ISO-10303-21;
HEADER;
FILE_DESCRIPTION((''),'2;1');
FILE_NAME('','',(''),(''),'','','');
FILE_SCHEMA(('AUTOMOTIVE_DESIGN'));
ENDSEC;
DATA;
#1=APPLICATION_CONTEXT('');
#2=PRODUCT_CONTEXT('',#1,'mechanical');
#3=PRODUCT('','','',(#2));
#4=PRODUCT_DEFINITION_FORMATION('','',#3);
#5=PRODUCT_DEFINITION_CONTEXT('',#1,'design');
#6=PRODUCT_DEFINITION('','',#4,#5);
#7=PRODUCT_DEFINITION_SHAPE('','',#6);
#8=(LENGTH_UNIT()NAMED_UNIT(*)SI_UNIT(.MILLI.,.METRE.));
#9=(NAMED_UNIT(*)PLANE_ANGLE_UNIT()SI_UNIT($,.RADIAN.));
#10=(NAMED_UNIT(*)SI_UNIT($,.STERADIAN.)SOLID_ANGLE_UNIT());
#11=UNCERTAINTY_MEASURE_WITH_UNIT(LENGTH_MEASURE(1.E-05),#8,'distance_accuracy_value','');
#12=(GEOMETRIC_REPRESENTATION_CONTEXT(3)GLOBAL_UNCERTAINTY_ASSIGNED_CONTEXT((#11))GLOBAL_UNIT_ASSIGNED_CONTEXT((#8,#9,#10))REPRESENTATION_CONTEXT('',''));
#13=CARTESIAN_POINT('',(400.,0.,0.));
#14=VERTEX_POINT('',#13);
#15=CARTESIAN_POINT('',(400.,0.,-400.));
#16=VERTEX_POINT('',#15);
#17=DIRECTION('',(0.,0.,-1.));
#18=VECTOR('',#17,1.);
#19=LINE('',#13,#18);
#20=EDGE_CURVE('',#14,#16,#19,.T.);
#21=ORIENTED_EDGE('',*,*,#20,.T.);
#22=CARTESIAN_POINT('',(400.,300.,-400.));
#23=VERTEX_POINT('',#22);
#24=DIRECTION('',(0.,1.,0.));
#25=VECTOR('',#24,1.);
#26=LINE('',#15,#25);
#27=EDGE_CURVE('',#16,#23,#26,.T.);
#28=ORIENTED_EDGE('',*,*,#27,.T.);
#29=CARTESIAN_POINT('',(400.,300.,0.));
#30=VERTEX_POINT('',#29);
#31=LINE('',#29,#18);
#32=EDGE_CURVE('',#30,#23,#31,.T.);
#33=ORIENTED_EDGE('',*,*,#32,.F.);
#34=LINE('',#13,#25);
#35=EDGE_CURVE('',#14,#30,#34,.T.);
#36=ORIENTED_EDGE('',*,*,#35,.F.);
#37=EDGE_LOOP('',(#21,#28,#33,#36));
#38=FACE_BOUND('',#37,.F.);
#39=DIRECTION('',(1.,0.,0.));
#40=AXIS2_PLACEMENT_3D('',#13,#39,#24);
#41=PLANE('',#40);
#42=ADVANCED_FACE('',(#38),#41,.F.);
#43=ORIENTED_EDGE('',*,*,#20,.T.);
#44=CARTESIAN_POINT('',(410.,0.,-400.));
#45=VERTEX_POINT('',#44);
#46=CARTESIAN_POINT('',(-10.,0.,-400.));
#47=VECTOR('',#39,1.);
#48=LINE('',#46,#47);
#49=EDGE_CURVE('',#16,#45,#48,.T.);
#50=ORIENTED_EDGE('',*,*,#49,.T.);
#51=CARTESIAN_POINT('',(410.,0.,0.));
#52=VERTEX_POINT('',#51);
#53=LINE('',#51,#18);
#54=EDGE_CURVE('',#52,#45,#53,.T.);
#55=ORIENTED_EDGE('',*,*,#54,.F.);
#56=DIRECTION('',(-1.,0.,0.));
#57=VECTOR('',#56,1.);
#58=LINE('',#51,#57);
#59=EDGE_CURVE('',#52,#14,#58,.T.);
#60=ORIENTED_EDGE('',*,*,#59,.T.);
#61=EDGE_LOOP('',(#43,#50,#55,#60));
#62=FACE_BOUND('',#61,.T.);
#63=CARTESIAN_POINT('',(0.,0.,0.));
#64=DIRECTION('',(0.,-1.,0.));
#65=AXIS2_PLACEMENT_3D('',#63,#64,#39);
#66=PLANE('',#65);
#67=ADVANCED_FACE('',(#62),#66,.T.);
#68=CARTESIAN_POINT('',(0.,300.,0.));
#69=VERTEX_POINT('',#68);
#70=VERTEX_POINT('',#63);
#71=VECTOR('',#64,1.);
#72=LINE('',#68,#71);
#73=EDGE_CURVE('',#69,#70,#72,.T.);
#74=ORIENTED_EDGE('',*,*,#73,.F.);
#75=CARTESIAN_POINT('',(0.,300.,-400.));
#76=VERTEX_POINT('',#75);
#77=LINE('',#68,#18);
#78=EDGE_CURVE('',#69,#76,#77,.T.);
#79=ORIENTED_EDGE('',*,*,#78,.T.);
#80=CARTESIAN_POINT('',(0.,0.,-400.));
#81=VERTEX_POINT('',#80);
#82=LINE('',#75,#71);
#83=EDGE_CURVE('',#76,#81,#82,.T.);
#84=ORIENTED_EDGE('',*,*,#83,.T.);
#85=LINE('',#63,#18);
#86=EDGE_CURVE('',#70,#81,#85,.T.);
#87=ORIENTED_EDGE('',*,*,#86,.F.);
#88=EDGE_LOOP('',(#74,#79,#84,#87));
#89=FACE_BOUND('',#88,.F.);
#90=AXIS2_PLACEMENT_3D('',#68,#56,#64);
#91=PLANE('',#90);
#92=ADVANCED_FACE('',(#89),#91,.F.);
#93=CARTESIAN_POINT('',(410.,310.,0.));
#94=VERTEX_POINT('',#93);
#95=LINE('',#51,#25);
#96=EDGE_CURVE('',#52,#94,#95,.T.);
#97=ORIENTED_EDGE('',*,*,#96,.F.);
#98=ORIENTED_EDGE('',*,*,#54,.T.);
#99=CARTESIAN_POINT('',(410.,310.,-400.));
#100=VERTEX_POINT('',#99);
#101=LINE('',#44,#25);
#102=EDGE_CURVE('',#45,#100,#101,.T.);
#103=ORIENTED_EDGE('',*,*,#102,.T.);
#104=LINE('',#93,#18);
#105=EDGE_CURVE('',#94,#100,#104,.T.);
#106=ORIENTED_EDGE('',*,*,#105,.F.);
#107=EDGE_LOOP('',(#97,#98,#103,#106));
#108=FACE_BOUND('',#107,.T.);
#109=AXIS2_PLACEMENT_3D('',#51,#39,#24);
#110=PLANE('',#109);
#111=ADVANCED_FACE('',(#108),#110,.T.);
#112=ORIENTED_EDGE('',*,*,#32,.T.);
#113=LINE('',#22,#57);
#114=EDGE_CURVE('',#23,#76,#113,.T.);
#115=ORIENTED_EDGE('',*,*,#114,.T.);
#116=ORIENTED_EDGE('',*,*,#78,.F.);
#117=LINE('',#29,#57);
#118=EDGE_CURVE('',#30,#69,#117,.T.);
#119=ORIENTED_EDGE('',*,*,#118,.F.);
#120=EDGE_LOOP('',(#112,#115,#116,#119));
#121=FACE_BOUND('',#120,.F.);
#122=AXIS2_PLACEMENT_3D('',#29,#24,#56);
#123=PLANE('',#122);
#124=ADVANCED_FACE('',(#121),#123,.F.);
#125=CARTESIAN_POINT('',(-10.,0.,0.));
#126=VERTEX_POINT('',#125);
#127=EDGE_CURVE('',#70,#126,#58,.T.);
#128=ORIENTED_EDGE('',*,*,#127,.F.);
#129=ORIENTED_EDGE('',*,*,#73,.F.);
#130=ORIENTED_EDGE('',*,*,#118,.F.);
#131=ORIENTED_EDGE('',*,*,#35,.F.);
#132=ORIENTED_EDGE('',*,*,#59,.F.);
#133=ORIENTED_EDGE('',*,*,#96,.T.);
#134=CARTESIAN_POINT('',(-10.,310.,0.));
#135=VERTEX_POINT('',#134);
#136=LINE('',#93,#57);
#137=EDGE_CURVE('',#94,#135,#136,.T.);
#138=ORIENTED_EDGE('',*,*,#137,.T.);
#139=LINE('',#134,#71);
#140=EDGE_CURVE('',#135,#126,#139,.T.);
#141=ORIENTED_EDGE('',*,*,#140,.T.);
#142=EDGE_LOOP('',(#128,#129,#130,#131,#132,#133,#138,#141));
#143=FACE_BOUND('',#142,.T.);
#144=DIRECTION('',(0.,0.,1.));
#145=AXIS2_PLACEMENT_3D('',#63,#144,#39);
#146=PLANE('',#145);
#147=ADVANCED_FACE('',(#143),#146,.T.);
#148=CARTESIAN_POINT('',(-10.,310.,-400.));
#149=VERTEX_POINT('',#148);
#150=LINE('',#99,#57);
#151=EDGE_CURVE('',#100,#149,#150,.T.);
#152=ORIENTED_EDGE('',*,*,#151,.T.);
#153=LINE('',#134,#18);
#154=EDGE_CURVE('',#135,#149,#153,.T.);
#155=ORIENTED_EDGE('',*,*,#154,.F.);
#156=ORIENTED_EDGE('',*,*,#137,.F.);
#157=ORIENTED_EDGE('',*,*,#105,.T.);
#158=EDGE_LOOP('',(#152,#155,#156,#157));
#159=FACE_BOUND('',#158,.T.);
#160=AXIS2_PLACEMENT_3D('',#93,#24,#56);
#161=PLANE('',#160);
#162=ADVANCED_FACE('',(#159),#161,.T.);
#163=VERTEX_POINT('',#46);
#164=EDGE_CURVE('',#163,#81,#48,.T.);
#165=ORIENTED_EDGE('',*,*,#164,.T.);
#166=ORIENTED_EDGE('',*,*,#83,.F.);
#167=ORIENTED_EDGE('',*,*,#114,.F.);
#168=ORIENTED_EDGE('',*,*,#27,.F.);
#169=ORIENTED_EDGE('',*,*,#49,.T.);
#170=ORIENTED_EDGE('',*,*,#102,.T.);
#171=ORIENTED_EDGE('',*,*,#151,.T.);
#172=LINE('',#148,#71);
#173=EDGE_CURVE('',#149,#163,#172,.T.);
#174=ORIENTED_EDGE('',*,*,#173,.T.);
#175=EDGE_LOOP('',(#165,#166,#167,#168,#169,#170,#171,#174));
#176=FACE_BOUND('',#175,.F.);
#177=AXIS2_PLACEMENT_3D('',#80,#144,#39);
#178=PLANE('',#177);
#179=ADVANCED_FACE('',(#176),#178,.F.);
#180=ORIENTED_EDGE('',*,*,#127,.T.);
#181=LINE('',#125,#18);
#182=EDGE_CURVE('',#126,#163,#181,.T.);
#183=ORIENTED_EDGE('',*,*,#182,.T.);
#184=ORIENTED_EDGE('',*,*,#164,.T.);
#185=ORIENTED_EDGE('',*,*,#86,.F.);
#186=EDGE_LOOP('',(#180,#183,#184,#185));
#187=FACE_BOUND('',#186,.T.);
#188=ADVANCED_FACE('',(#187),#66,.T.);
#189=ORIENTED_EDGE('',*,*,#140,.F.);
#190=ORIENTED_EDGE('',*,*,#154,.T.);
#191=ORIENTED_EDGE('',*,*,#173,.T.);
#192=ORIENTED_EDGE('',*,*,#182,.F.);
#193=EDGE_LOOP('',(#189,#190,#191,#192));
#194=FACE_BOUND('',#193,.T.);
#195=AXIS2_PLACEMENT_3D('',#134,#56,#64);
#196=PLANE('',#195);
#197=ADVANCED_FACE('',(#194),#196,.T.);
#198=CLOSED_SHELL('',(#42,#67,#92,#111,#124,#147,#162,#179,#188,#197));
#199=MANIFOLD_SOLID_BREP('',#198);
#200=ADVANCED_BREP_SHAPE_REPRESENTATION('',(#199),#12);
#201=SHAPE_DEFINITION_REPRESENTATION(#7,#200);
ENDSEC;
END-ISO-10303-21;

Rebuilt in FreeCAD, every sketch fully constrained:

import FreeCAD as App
import Part
import Sketcher
from FreeCAD import Vector

doc = App.newDocument("Part")
body = doc.addObject("PartDesign::Body", "Body")

sketch1 = body.newObject("Sketcher::SketchObject", "Sketch")
sketch1.AttachmentSupport = (doc.getObject("XY_Plane"), [""])
sketch1.MapMode = "FlatFace"
sketch1.addGeometry([
    Part.LineSegment(Vector(410, 0, 0), Vector(410, 310, 0)),
    Part.LineSegment(Vector(410, 310, 0), Vector(-10, 310, 0)),
    Part.LineSegment(Vector(-10, 310, 0), Vector(-10, 0, 0)),
    Part.LineSegment(Vector(-10, 0, 0), Vector(410, 0, 0)),
], False)
sketch1.addConstraint([
    Sketcher.Constraint("Coincident", 0, 2, 1, 1),
    Sketcher.Constraint("Coincident", 1, 2, 2, 1),
    Sketcher.Constraint("Coincident", 2, 2, 3, 1),
    Sketcher.Constraint("Coincident", 3, 2, 0, 1),
    Sketcher.Constraint("Vertical", 0),
    Sketcher.Constraint("Horizontal", 1),
    Sketcher.Constraint("Vertical", 2),
    Sketcher.Constraint("Horizontal", 3),
    Sketcher.Constraint("PointOnObject", 2, 2, -1),
    Sketcher.Constraint("DistanceX", 1, 2, -1, 1, 10.0),
    Sketcher.Constraint("DistanceX", 1, 2, 1, 1, 420.0),
    Sketcher.Constraint("DistanceY", 0, 1, 0, 2, 310.0),
])
pad1 = body.newObject("PartDesign::Pad", "Pad")
pad1.Profile = sketch1
pad1.Length = 400
pad1.Reversed = True

sketch2 = body.newObject("Sketcher::SketchObject", "Sketch001")
sketch2.AttachmentSupport = (doc.getObject("XY_Plane"), [""])
sketch2.MapMode = "FlatFace"
sketch2.addGeometry([
    Part.LineSegment(Vector(0, 300, 0), Vector(0, 0, 0)),
    Part.LineSegment(Vector(0, 0, 0), Vector(400, 0, 0)),
    Part.LineSegment(Vector(400, 0, 0), Vector(400, 300, 0)),
    Part.LineSegment(Vector(400, 300, 0), Vector(0, 300, 0)),
], False)
sketch2.addConstraint([
    Sketcher.Constraint("Coincident", 0, 2, 1, 1),
    Sketcher.Constraint("Coincident", 1, 2, 2, 1),
    Sketcher.Constraint("Coincident", 2, 2, 3, 1),
    Sketcher.Constraint("Coincident", 3, 2, 0, 1),
    Sketcher.Constraint("Vertical", 0),
    Sketcher.Constraint("Horizontal", 1),
    Sketcher.Constraint("Vertical", 2),
    Sketcher.Constraint("Horizontal", 3),
    Sketcher.Constraint("Coincident", 0, 2, -1, 1),
    Sketcher.Constraint("DistanceX", 1, 1, 1, 2, 400.0),
    Sketcher.Constraint("DistanceY", 0, 2, 0, 1, 300.0),
])
pocket1 = body.newObject("PartDesign::Pocket", "Pocket")
pocket1.Profile = sketch2
pocket1.Length = 400

doc.recompute()
